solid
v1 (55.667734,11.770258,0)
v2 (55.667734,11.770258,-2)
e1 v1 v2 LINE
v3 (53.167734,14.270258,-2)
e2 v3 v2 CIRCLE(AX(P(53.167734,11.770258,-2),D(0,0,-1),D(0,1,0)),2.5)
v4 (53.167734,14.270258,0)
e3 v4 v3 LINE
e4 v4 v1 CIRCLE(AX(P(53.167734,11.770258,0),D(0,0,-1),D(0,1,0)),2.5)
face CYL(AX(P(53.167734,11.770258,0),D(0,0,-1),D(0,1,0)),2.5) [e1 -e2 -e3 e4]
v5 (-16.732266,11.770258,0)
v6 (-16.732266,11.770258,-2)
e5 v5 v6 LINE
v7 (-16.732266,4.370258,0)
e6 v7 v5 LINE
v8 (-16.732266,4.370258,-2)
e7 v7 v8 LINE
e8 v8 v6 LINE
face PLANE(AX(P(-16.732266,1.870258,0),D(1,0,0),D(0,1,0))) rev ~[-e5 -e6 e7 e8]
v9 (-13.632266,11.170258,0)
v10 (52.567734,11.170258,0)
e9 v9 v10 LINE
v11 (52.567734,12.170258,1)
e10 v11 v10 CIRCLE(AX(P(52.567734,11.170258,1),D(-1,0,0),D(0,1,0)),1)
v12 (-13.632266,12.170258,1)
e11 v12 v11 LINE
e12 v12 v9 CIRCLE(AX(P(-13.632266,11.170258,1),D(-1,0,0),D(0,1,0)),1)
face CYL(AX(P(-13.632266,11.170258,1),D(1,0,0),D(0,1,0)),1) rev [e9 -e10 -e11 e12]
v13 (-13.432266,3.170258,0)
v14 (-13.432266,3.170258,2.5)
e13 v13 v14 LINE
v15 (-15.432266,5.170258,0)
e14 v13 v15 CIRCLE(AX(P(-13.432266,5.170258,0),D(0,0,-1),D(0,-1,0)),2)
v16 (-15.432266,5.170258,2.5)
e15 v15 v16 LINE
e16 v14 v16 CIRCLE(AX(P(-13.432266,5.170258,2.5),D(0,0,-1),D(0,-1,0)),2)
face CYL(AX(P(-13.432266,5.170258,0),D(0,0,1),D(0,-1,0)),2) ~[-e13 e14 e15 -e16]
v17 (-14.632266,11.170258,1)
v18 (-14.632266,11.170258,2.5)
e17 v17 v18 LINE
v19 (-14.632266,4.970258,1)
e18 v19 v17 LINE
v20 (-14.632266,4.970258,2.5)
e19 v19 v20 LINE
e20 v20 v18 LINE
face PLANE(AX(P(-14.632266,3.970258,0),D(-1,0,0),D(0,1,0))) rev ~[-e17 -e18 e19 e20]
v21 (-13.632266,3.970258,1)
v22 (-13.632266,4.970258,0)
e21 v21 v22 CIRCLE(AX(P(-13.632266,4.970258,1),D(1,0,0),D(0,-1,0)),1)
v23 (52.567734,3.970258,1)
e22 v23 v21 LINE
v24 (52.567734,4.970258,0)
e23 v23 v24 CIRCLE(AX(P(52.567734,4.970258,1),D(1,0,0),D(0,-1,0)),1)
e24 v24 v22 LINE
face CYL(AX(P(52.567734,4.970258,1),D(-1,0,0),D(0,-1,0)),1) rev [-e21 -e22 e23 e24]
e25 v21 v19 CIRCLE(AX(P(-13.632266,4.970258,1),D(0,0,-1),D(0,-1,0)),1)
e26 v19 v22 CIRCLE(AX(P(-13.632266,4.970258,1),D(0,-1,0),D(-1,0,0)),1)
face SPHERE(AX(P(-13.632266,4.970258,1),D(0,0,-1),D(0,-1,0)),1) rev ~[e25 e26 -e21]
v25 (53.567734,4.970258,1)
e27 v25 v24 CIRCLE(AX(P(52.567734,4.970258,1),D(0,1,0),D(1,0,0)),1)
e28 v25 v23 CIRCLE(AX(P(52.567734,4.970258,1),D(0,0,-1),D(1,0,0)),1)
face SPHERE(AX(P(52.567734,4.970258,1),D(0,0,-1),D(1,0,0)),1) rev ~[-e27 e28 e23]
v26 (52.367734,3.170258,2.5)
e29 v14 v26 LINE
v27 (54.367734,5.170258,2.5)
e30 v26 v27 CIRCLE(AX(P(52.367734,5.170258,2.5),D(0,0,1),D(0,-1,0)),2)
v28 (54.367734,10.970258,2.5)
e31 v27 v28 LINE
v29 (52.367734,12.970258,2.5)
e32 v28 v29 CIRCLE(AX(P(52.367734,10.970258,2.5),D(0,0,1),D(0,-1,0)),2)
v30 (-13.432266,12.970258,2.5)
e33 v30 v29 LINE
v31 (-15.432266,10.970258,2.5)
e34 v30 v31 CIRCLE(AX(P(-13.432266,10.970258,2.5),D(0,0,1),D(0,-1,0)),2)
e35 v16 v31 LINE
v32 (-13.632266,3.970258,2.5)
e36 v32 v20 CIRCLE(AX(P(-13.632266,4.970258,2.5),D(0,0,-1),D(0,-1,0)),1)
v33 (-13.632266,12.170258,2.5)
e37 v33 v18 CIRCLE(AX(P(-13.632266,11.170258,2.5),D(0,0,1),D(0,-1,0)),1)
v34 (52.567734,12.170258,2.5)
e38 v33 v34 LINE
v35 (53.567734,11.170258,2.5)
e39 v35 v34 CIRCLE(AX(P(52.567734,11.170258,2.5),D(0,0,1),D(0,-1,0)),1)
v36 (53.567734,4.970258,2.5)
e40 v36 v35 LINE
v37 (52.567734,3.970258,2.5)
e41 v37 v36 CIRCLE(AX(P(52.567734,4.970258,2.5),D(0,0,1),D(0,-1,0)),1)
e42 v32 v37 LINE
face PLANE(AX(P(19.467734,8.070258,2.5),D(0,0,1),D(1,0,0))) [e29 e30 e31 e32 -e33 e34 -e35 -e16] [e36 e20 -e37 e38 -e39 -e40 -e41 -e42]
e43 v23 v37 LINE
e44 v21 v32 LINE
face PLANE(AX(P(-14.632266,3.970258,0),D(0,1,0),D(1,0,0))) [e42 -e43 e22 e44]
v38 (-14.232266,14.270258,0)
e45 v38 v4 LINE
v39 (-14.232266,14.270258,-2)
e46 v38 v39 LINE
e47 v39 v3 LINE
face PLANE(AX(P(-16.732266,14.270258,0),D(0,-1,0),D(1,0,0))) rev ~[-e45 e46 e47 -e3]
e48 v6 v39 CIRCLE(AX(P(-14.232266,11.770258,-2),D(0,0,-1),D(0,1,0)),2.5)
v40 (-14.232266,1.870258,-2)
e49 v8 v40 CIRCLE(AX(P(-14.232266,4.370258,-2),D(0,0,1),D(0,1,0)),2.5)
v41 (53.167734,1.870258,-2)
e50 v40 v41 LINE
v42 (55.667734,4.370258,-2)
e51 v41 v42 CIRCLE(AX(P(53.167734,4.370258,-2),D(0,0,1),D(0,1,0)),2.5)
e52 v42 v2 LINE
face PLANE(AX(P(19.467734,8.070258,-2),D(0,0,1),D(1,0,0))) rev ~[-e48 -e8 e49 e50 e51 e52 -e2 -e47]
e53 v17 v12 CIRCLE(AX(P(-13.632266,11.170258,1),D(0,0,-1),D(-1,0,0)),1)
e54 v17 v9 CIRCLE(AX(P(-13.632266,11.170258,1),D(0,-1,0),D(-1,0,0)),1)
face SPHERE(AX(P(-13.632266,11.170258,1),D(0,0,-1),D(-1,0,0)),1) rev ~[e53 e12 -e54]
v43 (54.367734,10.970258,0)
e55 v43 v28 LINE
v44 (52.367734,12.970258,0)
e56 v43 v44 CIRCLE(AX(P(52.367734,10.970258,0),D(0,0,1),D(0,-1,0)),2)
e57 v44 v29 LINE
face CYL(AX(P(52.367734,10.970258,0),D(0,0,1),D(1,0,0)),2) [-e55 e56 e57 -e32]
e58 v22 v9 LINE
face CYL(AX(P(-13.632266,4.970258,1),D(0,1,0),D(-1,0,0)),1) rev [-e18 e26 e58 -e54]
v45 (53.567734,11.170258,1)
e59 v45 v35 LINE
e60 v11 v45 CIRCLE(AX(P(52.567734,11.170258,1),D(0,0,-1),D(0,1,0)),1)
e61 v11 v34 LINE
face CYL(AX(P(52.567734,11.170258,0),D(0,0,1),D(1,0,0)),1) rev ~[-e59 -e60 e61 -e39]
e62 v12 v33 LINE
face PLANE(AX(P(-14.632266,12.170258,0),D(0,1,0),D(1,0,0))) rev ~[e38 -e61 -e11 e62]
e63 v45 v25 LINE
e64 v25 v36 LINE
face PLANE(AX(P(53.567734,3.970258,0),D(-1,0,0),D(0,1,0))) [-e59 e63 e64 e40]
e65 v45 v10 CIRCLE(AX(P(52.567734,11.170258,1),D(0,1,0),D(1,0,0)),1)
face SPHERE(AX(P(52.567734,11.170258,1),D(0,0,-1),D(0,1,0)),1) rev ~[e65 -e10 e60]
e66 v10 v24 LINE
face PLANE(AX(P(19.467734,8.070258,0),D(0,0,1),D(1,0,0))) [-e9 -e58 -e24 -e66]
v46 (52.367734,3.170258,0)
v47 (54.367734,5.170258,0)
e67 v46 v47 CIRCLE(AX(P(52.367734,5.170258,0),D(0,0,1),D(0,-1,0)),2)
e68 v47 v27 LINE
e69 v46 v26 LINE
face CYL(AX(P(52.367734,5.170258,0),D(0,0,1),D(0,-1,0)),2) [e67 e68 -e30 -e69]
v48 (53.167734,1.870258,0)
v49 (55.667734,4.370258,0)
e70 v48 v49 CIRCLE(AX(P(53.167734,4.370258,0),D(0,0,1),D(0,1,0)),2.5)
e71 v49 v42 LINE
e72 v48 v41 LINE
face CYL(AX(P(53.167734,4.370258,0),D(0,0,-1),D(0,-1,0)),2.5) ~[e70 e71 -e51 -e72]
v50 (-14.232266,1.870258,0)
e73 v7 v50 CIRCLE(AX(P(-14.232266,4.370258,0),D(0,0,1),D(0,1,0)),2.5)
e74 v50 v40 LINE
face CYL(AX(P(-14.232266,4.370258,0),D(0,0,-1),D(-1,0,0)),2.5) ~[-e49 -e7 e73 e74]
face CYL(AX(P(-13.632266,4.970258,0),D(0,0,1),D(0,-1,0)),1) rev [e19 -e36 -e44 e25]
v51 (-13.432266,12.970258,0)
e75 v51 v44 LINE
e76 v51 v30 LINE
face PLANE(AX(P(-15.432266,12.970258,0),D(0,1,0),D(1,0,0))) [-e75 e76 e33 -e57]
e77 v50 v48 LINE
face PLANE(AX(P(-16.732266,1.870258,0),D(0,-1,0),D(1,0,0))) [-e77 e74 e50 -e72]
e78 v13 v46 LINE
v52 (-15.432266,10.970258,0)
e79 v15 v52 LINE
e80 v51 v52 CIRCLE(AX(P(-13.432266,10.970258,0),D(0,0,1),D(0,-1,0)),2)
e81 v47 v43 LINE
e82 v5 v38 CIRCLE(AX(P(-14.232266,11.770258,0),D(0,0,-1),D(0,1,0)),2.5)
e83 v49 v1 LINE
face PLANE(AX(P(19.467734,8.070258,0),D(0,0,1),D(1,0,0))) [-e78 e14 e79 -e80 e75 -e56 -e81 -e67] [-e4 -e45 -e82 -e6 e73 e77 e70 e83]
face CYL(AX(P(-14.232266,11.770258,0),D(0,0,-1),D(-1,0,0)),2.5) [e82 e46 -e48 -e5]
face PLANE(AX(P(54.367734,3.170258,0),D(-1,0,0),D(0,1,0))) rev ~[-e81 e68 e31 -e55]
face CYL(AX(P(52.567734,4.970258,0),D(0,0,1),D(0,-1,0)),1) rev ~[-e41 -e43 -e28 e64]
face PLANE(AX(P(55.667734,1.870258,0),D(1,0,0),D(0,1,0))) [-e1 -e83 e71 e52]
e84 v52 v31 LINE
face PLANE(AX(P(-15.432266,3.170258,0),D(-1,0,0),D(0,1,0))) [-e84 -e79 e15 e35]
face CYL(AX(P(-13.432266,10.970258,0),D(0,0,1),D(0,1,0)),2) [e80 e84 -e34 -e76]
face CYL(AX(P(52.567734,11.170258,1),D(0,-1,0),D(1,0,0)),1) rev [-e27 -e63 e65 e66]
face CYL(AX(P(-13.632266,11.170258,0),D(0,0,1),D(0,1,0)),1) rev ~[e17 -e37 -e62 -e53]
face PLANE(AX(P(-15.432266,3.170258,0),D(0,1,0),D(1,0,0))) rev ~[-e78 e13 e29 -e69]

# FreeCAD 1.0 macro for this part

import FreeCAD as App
import Part
import Sketcher
from FreeCAD import Vector


def edges_at(feature, points):
    """Names of the edges that pass closest to the given points."""
    edges = feature.Shape.Edges
    near = lambda p: min(range(len(edges)), key=lambda i: edges[i].distToShape(Part.Vertex(*p))[0])
    return sorted({f"Edge{near(p) + 1}" for p in points})

doc = App.newDocument("Part")
body = doc.addObject("PartDesign::Body", "Body")

sketch1 = doc.addObject("Sketcher::SketchObject", "Sketch")
body.addObject(sketch1)
sketch1.AttachmentSupport = (doc.XY_Plane, [""])
sketch1.MapMode = "FlatFace"
sketch1.addGeometry(Part.LineSegment(Vector(-17, 14, 0), Vector(-17, 2, 0)), False)
sketch1.addGeometry(Part.LineSegment(Vector(-17, 2, 0), Vector(56, 2, 0)), False)
sketch1.addGeometry(Part.LineSegment(Vector(56, 2, 0), Vector(56, 14, 0)), False)
sketch1.addGeometry(Part.LineSegment(Vector(56, 14, 0), Vector(-17, 14, 0)), False)
sketch1.addConstraint(Sketcher.Constraint("Coincident", 0, 2, 1, 1))
sketch1.addConstraint(Sketcher.Constraint("Coincident", 1, 2, 2, 1))
sketch1.addConstraint(Sketcher.Constraint("Coincident", 2, 2, 3, 1))
sketch1.addConstraint(Sketcher.Constraint("Coincident", 3, 2, 0, 1))
sketch1.addConstraint(Sketcher.Constraint("Vertical", 0))
sketch1.addConstraint(Sketcher.Constraint("Horizontal", 1))
sketch1.addConstraint(Sketcher.Constraint("Vertical", 2))
sketch1.addConstraint(Sketcher.Constraint("Horizontal", 3))
sketch1.addConstraint(Sketcher.Constraint("DistanceX", 1, 1, 1, 2, 72.4))
sketch1.addConstraint(Sketcher.Constraint("DistanceY", 0, 2, 0, 1, 12.4))
sketch1.addConstraint(Sketcher.Constraint("DistanceY", -1, 1, 0, 2, 1.870258))
sketch1.addConstraint(Sketcher.Constraint("DistanceX", 0, 2, -1, 1, 16.732266))
pad1 = doc.addObject("PartDesign::Pad", "Pad")
body.addObject(pad1)
pad1.Profile = sketch1
pad1.Length = 2
pad1.Reversed = True

sketch2 = doc.addObject("Sketcher::SketchObject", "Sketch001")
body.addObject(sketch2)
sketch2.AttachmentSupport = (doc.XY_Plane, [""])
sketch2.MapMode = "FlatFace"
sketch2.addGeometry(Part.LineSegment(Vector(-15, 13, 0), Vector(-15, 3, 0)), False)
sketch2.addGeometry(Part.LineSegment(Vector(-15, 3, 0), Vector(54, 3, 0)), False)
sketch2.addGeometry(Part.LineSegment(Vector(54, 3, 0), Vector(54, 13, 0)), False)
sketch2.addGeometry(Part.LineSegment(Vector(54, 13, 0), Vector(-15, 13, 0)), False)
sketch2.addGeometry(Part.LineSegment(Vector(54, 4, 0), Vector(-15, 4, 0)), False)
sketch2.addGeometry(Part.LineSegment(Vector(-15, 4, 0), Vector(-15, 12, 0)), False)
sketch2.addGeometry(Part.LineSegment(Vector(-15, 12, 0), Vector(54, 12, 0)), False)
sketch2.addGeometry(Part.LineSegment(Vector(54, 12, 0), Vector(54, 4, 0)), False)
sketch2.addConstraint(Sketcher.Constraint("Coincident", 0, 2, 1, 1))
sketch2.addConstraint(Sketcher.Constraint("Coincident", 1, 2, 2, 1))
sketch2.addConstraint(Sketcher.Constraint("Coincident", 2, 2, 3, 1))
sketch2.addConstraint(Sketcher.Constraint("Coincident", 3, 2, 0, 1))
sketch2.addConstraint(Sketcher.Constraint("Coincident", 4, 2, 5, 1))
sketch2.addConstraint(Sketcher.Constraint("Coincident", 5, 2, 6, 1))
sketch2.addConstraint(Sketcher.Constraint("Coincident", 6, 2, 7, 1))
sketch2.addConstraint(Sketcher.Constraint("Coincident", 7, 2, 4, 1))
sketch2.addConstraint(Sketcher.Constraint("Vertical", 0))
sketch2.addConstraint(Sketcher.Constraint("Horizontal", 1))
sketch2.addConstraint(Sketcher.Constraint("Vertical", 2))
sketch2.addConstraint(Sketcher.Constraint("Horizontal", 3))
sketch2.addConstraint(Sketcher.Constraint("Horizontal", 4))
sketch2.addConstraint(Sketcher.Constraint("Vertical", 5))
sketch2.addConstraint(Sketcher.Constraint("Horizontal", 6))
sketch2.addConstraint(Sketcher.Constraint("Vertical", 7))
sketch2.addConstraint(Sketcher.Constraint("DistanceX", 1, 1, 1, 2, 69.8))
sketch2.addConstraint(Sketcher.Constraint("DistanceX", 4, 2, 4, 1, 68.2))
sketch2.addConstraint(Sketcher.Constraint("DistanceY", 0, 2, 0, 1, 9.8))
sketch2.addConstraint(Sketcher.Constraint("DistanceY", 5, 1, 5, 2, 8.2))
sketch2.addConstraint(Sketcher.Constraint("DistanceY", 4, 2, 3, 2, 9.0))
sketch2.addConstraint(Sketcher.Constraint("DistanceX", 4, 2, 1, 2, 69.0))
sketch2.addConstraint(Sketcher.Constraint("DistanceY", -1, 1, 0, 2, 3.170258))
sketch2.addConstraint(Sketcher.Constraint("DistanceX", 0, 2, -1, 1, 15.432266))
pad2 = doc.addObject("PartDesign::Pad", "Pad001")
body.addObject(pad2)
pad2.Profile = sketch2
pad2.Length = 2.5
doc.recompute()

fillet = doc.addObject("PartDesign::Fillet", "Fillet")
body.addObject(fillet)
fillet.Base = (pad2, edges_at(pad2, [
    (-16.732, 14.27, -1),
    (-16.732, 1.87, -1),
    (55.668, 14.27, -1),
    (55.668, 1.87, -1),
]))
fillet.Radius = 2.5
doc.recompute()

fillet2 = doc.addObject("PartDesign::Fillet", "Fillet001")
body.addObject(fillet2)
fillet2.Base = (fillet, edges_at(fillet, [
    (54.368, 12.97, 1.25),
    (54.368, 3.17, 1.25),
    (-15.432, 12.97, 1.25),
    (-15.432, 3.17, 1.25),
]))
fillet2.Radius = 2
doc.recompute()

fillet3 = doc.addObject("PartDesign::Fillet", "Fillet002")
body.addObject(fillet3)
fillet3.Base = (fillet2, edges_at(fillet2, [
    (53.568, 3.97, 1.25),
    (53.568, 12.17, 1.25),
    (-14.632, 3.97, 1.25),
    (-14.632, 12.17, 1.25),
]))
fillet3.Radius = 1
doc.recompute()

fillet4 = doc.addObject("PartDesign::Fillet", "Fillet003")
body.addObject(fillet4)
fillet4.Base = (fillet3, edges_at(fillet3, [
    (19.468, 12.17, 0),
    (53.568, 8.07, 0),
    (19.468, 3.97, 0),
    (-14.632, 8.07, 0),
]))
fillet4.Radius = 1

doc.recompute()
